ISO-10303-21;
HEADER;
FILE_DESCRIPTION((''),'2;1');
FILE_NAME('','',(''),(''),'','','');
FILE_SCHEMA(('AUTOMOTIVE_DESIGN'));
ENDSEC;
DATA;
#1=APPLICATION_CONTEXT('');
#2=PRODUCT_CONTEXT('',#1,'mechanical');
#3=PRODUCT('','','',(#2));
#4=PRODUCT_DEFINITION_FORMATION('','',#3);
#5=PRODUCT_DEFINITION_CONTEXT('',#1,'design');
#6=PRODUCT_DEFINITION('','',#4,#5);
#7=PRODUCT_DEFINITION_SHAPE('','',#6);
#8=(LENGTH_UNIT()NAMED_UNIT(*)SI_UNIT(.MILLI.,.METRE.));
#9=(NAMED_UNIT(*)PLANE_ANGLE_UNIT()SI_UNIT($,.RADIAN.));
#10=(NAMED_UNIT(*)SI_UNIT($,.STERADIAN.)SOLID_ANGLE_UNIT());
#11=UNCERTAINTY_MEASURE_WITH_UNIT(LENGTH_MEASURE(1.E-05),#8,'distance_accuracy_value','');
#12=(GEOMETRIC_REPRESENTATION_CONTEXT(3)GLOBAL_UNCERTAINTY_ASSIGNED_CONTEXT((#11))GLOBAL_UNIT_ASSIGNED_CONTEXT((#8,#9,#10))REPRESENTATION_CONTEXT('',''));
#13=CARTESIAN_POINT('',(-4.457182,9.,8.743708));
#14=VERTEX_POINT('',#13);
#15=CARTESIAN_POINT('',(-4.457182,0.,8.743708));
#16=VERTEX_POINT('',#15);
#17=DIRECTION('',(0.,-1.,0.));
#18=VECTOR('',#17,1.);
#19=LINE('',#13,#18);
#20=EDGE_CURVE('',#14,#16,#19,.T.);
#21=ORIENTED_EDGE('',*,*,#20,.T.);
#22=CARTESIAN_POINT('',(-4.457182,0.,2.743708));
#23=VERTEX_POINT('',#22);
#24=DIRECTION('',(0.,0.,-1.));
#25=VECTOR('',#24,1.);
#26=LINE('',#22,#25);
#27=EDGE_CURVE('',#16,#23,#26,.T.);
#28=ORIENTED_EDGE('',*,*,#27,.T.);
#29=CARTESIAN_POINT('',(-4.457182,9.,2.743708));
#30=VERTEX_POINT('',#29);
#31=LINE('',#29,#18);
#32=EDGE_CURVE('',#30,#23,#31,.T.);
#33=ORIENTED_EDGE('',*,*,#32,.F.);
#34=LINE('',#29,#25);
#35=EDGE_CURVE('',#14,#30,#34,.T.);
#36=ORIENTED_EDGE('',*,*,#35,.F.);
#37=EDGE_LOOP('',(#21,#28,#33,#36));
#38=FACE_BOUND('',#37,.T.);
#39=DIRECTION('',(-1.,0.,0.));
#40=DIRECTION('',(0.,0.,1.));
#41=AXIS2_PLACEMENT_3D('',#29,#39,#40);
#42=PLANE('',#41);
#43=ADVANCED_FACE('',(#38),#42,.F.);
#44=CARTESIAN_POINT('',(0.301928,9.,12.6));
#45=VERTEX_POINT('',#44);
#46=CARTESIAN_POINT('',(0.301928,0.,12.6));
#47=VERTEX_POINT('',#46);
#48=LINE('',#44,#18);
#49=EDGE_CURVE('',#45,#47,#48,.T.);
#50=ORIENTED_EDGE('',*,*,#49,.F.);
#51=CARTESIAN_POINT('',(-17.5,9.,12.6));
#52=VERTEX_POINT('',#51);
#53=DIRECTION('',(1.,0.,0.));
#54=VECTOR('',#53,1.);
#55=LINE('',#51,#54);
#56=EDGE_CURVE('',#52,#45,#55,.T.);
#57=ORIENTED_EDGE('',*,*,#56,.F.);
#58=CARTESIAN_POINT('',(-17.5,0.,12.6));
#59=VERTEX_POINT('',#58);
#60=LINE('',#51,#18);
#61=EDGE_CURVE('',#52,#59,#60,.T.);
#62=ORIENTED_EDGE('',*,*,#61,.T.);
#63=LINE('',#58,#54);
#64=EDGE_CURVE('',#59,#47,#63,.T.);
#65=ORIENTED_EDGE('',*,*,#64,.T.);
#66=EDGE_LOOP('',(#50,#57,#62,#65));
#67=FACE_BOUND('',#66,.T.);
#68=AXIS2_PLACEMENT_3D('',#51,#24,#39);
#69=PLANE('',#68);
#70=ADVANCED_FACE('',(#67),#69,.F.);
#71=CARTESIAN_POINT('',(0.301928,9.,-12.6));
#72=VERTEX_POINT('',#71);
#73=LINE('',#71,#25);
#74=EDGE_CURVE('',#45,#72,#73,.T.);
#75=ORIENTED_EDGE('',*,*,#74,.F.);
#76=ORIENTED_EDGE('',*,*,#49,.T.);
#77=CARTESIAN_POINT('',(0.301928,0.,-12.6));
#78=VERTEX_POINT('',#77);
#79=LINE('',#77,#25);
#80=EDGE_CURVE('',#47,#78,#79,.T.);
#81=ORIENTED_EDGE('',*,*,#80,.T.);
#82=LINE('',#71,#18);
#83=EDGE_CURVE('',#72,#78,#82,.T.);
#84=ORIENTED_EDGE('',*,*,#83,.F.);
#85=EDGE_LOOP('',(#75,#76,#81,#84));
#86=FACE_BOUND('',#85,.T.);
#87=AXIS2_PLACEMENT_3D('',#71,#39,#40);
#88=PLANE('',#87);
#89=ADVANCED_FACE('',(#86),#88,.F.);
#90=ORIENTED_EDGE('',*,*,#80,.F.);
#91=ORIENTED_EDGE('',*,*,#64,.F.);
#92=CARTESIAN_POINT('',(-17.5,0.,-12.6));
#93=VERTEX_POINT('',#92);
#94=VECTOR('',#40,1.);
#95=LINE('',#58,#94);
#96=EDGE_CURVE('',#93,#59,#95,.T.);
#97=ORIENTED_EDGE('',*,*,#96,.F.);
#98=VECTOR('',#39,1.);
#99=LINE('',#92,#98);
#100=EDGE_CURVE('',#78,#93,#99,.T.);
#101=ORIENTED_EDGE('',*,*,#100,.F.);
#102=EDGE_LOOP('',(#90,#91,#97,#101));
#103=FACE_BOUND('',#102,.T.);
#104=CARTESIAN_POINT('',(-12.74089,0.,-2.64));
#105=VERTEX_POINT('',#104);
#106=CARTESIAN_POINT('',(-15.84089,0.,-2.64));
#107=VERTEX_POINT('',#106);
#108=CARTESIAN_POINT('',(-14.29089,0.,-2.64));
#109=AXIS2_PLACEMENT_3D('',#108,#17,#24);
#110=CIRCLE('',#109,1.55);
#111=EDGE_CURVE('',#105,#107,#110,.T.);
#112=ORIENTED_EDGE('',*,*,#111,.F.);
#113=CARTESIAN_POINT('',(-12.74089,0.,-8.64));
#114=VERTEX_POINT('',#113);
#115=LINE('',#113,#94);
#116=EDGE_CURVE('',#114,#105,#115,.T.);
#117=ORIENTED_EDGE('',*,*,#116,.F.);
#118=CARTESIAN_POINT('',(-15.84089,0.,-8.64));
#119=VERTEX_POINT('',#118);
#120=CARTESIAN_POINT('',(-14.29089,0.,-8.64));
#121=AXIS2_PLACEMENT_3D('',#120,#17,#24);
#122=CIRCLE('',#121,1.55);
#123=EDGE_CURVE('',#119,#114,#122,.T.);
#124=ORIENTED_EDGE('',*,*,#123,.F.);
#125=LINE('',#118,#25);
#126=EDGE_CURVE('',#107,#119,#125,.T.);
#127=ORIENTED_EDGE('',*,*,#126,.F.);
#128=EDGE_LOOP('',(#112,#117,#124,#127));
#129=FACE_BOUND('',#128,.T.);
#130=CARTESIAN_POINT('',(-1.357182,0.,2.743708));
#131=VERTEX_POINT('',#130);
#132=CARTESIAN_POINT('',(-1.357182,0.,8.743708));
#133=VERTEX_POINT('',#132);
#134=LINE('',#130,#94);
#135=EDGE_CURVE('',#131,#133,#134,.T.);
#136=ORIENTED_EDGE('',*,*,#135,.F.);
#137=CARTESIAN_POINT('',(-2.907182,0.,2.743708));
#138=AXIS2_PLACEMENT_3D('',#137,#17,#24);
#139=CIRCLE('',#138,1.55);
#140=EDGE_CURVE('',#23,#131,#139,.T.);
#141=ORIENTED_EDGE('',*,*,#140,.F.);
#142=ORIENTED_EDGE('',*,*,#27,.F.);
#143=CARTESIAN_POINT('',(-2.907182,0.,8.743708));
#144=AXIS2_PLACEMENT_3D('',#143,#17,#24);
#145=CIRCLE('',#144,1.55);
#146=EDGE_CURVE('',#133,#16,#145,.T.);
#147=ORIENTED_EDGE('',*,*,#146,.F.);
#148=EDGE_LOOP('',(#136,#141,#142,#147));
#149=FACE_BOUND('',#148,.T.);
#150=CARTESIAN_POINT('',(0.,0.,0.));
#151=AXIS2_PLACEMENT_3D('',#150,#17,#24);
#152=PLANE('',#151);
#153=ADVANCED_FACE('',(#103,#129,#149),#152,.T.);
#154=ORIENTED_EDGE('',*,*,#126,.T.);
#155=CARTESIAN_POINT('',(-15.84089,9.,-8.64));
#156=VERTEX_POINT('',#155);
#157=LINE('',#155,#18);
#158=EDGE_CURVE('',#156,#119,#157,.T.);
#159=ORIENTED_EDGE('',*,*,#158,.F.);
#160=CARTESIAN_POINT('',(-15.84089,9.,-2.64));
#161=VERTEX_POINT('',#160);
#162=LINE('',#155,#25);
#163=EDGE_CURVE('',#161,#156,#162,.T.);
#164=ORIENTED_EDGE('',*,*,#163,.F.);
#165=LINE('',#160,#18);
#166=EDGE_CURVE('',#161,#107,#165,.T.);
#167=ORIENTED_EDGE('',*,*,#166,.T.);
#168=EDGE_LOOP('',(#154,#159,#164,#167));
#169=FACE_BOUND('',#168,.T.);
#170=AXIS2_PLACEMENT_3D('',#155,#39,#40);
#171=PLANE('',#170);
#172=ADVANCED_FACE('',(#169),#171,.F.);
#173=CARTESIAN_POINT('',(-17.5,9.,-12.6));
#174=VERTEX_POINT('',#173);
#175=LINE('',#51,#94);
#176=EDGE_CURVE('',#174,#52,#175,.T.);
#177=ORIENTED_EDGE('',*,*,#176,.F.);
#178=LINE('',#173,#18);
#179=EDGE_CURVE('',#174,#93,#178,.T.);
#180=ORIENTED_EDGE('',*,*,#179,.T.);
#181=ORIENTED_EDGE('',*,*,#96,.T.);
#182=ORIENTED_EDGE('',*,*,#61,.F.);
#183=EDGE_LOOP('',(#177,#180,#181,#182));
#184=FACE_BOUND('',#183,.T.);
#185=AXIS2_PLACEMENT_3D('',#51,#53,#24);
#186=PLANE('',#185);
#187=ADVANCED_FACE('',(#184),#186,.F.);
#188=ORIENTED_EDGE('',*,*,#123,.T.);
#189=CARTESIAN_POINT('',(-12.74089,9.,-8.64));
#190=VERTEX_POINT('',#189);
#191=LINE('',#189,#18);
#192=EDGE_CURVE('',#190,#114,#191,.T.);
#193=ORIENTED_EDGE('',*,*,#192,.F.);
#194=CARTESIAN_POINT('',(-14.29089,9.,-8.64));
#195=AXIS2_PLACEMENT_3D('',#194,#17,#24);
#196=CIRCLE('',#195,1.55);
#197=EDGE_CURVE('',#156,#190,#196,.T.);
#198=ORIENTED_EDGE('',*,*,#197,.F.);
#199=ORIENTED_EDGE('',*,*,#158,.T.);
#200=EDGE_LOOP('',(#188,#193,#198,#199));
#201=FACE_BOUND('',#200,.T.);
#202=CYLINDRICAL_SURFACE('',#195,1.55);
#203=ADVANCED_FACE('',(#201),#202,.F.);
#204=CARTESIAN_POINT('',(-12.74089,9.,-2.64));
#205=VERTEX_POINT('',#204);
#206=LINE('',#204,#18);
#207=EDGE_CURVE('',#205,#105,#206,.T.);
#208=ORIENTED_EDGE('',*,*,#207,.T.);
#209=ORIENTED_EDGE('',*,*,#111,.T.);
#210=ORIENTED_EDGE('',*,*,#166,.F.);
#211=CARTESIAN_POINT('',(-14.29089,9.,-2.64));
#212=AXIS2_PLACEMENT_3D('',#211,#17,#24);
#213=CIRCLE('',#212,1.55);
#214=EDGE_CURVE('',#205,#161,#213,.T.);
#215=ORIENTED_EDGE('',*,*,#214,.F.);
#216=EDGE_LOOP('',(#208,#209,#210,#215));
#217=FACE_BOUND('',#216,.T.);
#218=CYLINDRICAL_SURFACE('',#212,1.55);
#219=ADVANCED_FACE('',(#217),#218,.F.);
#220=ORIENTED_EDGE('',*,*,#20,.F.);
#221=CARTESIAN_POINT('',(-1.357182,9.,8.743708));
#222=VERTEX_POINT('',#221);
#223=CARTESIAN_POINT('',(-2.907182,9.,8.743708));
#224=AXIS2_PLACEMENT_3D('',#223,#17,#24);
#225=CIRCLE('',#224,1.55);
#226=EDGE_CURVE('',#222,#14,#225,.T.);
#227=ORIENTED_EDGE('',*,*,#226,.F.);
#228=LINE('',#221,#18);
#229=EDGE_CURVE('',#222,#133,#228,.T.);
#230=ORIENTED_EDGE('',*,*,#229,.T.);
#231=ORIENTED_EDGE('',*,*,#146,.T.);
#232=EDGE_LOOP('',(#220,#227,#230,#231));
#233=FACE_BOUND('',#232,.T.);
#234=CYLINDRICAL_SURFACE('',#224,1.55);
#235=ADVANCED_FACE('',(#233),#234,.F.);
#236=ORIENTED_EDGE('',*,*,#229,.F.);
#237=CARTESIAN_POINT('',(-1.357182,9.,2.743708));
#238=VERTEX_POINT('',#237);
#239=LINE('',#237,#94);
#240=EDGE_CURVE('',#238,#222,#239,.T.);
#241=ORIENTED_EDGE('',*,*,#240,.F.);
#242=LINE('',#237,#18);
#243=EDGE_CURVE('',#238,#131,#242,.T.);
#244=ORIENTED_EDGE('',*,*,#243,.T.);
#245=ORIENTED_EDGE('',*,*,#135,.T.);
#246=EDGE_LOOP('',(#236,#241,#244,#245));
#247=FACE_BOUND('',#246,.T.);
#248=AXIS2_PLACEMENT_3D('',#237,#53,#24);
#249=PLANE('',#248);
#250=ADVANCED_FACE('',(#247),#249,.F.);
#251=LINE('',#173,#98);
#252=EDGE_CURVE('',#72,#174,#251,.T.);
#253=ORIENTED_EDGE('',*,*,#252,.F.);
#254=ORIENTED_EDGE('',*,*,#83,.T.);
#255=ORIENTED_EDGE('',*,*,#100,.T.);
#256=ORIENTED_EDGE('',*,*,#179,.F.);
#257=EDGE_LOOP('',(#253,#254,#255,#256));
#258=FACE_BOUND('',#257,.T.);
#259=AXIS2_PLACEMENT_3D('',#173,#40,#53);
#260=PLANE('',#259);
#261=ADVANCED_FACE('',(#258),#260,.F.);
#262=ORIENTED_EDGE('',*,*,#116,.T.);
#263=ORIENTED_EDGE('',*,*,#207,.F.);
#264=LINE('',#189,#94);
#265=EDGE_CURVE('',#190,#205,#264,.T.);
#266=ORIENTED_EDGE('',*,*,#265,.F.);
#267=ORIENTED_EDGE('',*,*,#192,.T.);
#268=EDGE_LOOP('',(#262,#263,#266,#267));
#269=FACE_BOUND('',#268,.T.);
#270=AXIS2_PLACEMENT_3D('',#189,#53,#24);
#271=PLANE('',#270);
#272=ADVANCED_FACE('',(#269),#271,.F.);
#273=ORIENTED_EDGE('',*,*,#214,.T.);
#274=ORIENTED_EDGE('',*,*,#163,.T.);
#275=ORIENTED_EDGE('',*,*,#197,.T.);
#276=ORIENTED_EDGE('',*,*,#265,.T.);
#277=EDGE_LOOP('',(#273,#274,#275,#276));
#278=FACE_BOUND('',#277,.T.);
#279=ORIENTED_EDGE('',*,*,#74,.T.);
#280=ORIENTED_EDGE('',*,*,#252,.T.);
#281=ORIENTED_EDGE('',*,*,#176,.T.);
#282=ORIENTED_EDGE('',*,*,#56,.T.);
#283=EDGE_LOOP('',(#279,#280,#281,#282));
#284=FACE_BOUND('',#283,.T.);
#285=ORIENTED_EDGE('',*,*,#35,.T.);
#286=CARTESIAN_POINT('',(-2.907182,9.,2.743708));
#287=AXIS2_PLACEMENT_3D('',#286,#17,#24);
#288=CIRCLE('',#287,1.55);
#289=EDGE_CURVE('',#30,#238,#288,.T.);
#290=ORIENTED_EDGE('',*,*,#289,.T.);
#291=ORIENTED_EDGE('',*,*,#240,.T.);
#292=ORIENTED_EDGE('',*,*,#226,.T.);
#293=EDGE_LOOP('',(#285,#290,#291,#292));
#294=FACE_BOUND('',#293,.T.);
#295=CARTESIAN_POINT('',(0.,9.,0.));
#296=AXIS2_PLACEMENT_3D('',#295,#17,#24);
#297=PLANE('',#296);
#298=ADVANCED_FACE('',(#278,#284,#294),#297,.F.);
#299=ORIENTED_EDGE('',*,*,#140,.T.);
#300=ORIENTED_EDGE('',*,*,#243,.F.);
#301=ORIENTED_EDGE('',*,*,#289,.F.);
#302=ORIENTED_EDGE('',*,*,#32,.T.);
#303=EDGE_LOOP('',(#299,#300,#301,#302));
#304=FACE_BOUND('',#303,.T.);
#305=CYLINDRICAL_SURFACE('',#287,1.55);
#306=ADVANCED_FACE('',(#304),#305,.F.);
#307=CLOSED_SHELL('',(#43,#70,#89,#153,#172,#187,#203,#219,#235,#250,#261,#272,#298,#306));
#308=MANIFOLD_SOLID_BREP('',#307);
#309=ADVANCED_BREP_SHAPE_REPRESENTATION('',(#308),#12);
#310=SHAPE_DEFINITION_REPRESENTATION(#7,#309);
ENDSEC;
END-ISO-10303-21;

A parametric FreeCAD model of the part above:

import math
import FreeCAD as App
import Part
import Sketcher

V = App.Vector


def add_polygon(sketch, points):
    """Adds a closed chain of lines whose ends are joined by coincident constraints."""
    first, n = sketch.GeometryCount, len(points)
    for a, b in zip(points, points[1:] + points[:1]):
        sketch.addGeometry(Part.LineSegment(App.Vector(*a, 0), App.Vector(*b, 0)), False)
    for i in range(n):
        sketch.addConstraint(Sketcher.Constraint("Coincident", first + i, 2, first + (i + 1) % n, 1))

doc = App.newDocument("Part")
body = doc.addObject("PartDesign::Body", "Body")

sketch1 = body.newObject("Sketcher::SketchObject", "Sketch")
sketch1.AttachmentSupport = (doc.getObject("XZ_Plane"), [""])
sketch1.MapMode = "FlatFace"
add_polygon(sketch1, [(-18, -13), (-18, 13), (18, 13), (18, -13)])
sketch1.addConstraint([
    Sketcher.Constraint("Vertical", 0),
    Sketcher.Constraint("Horizontal", 1),
    Sketcher.Constraint("Vertical", 2),
    Sketcher.Constraint("Horizontal", 3),
    Sketcher.Constraint("Symmetric", 0, 2, 2, 2, -1, 1),
    Sketcher.Constraint("DistanceX", 1, 1, 1, 2, 35.0),
    Sketcher.Constraint("DistanceY", 0, 1, 0, 2, 25.2),
])
pad1 = body.newObject("PartDesign::Pad", "Pad")
pad1.Profile = sketch1
pad1.Length = 9
pad1.Reversed = True

sketch2 = body.newObject("Sketcher::SketchObject", "Sketch001")
sketch2.AttachmentSupport = (doc.getObject("XZ_Plane"), [""])
sketch2.MapMode = "FlatFace"
sketch2.addGeometry([
    Part.LineSegment(V(-4.5, 8.7, 0), V(-4.5, 2.7, 0)),
    Part.ArcOfCircle(Part.Circle(V(-2.9, 2.7, 0), V(0, 0, 1), 1.6), math.radians(180), math.radians(360)),
    Part.LineSegment(V(-1.4, 2.7, 0), V(-1.4, 8.7, 0)),
    Part.ArcOfCircle(Part.Circle(V(-2.9, 8.7, 0), V(0, 0, 1), 1.6), math.radians(0), math.radians(180)),
    Part.LineSegment(V(-12.7, -8.6, 0), V(-12.7, -2.6, 0)),
    Part.ArcOfCircle(Part.Circle(V(-14.3, -2.6, 0), V(0, 0, 1), 1.6), math.radians(0), math.radians(180)),
    Part.LineSegment(V(-15.8, -2.6, 0), V(-15.8, -8.6, 0)),
    Part.ArcOfCircle(Part.Circle(V(-14.3, -8.6, 0), V(0, 0, 1), 1.6), math.radians(180), math.radians(360)),
], False)
sketch2.addConstraint([
    Sketcher.Constraint("Tangent", 0, 2, 1, 1),
    Sketcher.Constraint("Tangent", 1, 2, 2, 1),
    Sketcher.Constraint("Tangent", 2, 2, 3, 1),
    Sketcher.Constraint("Tangent", 3, 2, 0, 1),
    Sketcher.Constraint("Tangent", 4, 2, 5, 1),
    Sketcher.Constraint("Tangent", 5, 2, 6, 1),
    Sketcher.Constraint("Tangent", 6, 2, 7, 1),
    Sketcher.Constraint("Tangent", 7, 2, 4, 1),
    Sketcher.Constraint("Vertical", 0),
    Sketcher.Constraint("Vertical", 2),
    Sketcher.Constraint("Vertical", 4),
    Sketcher.Constraint("Vertical", 6),
    Sketcher.Constraint("Equal", 3, 5),
    Sketcher.Constraint("Equal", 2, 4),
    Sketcher.Constraint("DistanceY", 0, 2, 0, 1, 6.0),
    Sketcher.Constraint("Radius", 1, 1.55),
    Sketcher.Constraint("DistanceY", 5, 3, -1, 1, 2.64),
    Sketcher.Constraint("DistanceX", 1, 3, -1, 1, 2.907182),
    Sketcher.Constraint("DistanceY", -1, 1, 1, 3, 2.743708),
    Sketcher.Constraint("DistanceX", 5, 3, -1, 1, 14.29089),
])
pocket1 = body.newObject("PartDesign::Pocket", "Pocket")
pocket1.Profile = sketch2
pocket1.Type = "ThroughAll"

sketch3 = body.newObject("Sketcher::SketchObject", "Sketch002")
sketch3.AttachmentSupport = (doc.getObject("XZ_Plane"), [""])
sketch3.MapMode = "FlatFace"
add_polygon(sketch3, [(0, 13), (0, -13), (18, -13), (18, 13)])
sketch3.addConstraint([
    Sketcher.Constraint("Vertical", 0),
    Sketcher.Constraint("Horizontal", 1),
    Sketcher.Constraint("Vertical", 2),
    Sketcher.Constraint("Horizontal", 3),
    Sketcher.Constraint("DistanceY", 0, 2, 0, 1, 25.2),
    Sketcher.Constraint("DistanceY", 0, 2, -1, 1, 12.6),
    Sketcher.Constraint("DistanceX", -1, 1, 1, 2, 17.5),
    Sketcher.Constraint("DistanceX", 1, 1, 1, 2, 17.198072),
])
pocket2 = body.newObject("PartDesign::Pocket", "Pocket001")
pocket2.Profile = sketch3
pocket2.Type = "ThroughAll"

doc.recompute()
